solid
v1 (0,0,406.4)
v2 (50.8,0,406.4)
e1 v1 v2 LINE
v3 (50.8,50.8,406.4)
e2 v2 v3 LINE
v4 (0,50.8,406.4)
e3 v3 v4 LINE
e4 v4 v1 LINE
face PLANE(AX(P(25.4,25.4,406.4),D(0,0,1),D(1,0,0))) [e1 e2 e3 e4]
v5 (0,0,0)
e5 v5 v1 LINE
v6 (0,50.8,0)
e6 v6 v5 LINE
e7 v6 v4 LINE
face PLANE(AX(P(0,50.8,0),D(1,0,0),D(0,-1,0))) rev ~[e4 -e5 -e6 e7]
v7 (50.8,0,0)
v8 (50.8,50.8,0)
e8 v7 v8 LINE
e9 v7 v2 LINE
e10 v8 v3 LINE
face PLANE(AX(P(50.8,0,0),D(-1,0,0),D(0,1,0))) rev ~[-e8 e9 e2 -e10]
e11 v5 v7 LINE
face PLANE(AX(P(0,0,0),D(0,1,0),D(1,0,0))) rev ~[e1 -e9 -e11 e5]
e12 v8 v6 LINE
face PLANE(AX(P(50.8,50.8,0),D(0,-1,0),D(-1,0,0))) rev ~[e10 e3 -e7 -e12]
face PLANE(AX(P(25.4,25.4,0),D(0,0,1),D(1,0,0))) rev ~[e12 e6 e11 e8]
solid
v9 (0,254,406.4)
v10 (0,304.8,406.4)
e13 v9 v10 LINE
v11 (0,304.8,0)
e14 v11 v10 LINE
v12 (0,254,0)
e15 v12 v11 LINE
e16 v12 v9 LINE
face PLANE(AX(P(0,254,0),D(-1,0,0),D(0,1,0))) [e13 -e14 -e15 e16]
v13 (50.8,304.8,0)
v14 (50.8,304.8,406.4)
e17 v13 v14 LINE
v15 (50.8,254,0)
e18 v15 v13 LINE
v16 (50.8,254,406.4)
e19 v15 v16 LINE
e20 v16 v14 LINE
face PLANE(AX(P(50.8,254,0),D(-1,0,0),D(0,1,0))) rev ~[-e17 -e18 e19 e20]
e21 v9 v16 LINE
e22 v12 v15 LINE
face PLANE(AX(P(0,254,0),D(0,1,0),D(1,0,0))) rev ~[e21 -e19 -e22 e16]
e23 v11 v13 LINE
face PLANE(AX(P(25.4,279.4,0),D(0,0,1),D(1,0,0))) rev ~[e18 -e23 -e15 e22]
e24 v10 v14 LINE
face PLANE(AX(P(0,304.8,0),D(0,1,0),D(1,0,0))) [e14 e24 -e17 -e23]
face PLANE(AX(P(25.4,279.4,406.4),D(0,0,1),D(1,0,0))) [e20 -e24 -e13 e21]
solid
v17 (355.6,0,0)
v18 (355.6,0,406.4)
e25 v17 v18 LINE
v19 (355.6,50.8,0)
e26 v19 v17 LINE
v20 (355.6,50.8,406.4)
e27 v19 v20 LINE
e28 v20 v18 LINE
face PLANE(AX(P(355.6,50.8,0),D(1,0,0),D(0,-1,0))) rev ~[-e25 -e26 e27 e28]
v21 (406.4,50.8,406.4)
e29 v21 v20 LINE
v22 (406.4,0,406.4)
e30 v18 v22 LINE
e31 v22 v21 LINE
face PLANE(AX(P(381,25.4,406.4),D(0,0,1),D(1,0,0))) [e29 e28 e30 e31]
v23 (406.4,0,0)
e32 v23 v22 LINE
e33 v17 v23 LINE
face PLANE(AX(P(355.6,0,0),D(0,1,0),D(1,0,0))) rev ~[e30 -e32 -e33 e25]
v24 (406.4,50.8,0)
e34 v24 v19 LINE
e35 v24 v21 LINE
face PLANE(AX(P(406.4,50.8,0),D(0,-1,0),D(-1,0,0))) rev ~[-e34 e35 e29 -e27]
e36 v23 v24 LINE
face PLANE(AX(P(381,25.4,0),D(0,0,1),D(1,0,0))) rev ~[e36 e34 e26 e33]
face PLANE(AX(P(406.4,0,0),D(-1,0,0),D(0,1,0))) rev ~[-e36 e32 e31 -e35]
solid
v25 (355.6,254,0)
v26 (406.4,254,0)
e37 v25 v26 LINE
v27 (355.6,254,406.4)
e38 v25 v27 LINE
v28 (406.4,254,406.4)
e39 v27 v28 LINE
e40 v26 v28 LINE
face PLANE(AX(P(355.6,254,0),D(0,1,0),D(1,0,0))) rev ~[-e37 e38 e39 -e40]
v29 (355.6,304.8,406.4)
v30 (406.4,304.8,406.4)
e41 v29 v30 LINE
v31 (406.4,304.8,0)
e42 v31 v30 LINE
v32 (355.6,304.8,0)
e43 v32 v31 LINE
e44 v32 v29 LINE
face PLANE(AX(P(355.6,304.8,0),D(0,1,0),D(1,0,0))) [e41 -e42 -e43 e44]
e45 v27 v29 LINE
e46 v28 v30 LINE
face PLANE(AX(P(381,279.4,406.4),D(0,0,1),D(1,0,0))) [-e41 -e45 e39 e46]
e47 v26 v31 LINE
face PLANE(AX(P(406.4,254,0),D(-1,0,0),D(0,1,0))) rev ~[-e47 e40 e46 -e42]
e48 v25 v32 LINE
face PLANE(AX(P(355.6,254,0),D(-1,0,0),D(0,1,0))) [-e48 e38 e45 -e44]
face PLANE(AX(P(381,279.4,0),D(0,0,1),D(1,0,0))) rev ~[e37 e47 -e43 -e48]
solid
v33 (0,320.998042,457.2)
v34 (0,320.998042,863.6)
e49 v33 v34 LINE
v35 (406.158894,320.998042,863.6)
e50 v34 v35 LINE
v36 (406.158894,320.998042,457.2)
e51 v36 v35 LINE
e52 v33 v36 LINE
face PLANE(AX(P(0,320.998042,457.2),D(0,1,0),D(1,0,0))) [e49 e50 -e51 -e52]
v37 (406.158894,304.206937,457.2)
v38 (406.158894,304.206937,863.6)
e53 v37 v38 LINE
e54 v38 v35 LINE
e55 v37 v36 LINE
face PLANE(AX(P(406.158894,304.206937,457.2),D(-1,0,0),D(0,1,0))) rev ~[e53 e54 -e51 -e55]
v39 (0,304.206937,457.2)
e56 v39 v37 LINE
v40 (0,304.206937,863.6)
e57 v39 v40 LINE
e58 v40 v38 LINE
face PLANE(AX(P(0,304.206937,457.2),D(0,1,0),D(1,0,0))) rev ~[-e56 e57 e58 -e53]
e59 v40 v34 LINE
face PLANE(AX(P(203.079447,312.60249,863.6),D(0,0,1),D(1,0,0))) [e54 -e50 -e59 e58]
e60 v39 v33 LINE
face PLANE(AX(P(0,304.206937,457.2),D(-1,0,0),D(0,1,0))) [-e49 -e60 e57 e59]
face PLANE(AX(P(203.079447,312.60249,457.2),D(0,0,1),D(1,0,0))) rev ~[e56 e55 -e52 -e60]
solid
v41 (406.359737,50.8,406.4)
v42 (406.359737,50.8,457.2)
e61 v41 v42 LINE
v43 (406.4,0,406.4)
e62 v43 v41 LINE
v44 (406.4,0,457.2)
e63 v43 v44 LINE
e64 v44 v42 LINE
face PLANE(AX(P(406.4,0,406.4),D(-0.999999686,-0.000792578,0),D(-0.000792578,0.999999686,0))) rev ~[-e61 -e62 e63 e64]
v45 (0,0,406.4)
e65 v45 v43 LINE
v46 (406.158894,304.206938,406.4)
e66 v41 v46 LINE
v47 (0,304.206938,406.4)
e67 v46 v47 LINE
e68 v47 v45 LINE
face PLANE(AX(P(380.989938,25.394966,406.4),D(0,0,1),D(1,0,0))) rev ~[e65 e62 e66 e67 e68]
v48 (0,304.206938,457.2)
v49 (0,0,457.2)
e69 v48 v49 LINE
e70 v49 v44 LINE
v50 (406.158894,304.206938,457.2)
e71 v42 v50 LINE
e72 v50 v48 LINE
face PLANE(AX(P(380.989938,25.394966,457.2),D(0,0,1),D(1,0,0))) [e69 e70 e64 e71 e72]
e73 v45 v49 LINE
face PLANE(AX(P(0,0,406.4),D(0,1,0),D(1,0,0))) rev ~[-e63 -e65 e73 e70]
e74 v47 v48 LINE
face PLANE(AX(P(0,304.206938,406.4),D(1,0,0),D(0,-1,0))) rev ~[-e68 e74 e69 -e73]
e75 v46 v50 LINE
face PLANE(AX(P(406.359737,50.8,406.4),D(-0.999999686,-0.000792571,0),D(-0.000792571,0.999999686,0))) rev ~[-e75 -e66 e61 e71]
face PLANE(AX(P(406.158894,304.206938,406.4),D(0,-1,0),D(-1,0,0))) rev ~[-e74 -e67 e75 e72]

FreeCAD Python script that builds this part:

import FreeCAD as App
import Part
import Sketcher
Q = App.Units.Quantity


def add_polygon(sketch, points):
    """Adds a closed chain of lines whose ends are joined by coincident constraints."""
    first, n = sketch.GeometryCount, len(points)
    for a, b in zip(points, points[1:] + points[:1]):
        sketch.addGeometry(Part.LineSegment(App.Vector(*a, 0), App.Vector(*b, 0)), False)
    for i in range(n):
        sketch.addConstraint(Sketcher.Constraint("Coincident", first + i, 2, first + (i + 1) % n, 1))

doc = App.newDocument("Part")
body = doc.addObject("PartDesign::Body", "Body")
body.AllowCompound = True

sketch1 = body.newObject("Sketcher::SketchObject", "Sketch")
sketch1.AttachmentSupport = (doc.getObject("XY_Plane"), [""])
sketch1.MapMode = "FlatFace"
add_polygon(sketch1, [(0, 50.8), (0, 0), (50.8, 0), (50.8, 50.8)])
add_polygon(sketch1, [(0, 304.8), (0, 254), (50.8, 254), (50.8, 304.8)])
add_polygon(sketch1, [(355.6, 304.8), (355.6, 254), (406.4, 254), (406.4, 304.8)])
add_polygon(sketch1, [(355.6, 0), (406.4, 0), (406.4, 50.8), (355.6, 50.8)])
sketch1.addConstraint(Sketcher.Constraint("Vertical", 0))
sketch1.addConstraint(Sketcher.Constraint("Horizontal", 1))
sketch1.addConstraint(Sketcher.Constraint("Vertical", 2))
sketch1.addConstraint(Sketcher.Constraint("Horizontal", 3))
sketch1.addConstraint(Sketcher.Constraint("Vertical", 4))
sketch1.addConstraint(Sketcher.Constraint("Horizontal", 5))
sketch1.addConstraint(Sketcher.Constraint("Vertical", 6))
sketch1.addConstraint(Sketcher.Constraint("Horizontal", 7))
sketch1.addConstraint(Sketcher.Constraint("Vertical", 8))
sketch1.addConstraint(Sketcher.Constraint("Horizontal", 9))
sketch1.addConstraint(Sketcher.Constraint("Vertical", 10))
sketch1.addConstraint(Sketcher.Constraint("Horizontal", 11))
sketch1.addConstraint(Sketcher.Constraint("Horizontal", 12))
sketch1.addConstraint(Sketcher.Constraint("Vertical", 13))
sketch1.addConstraint(Sketcher.Constraint("Horizontal", 14))
sketch1.addConstraint(Sketcher.Constraint("Vertical", 15))
sketch1.addConstraint(Sketcher.Constraint("Coincident", 0, 2, -1, 1))
sketch1.addConstraint(Sketcher.Constraint("PointOnObject", 4, 2, -2))
sketch1.addConstraint(Sketcher.Constraint("PointOnObject", 12, 2, -1))
sketch1.addConstraint(Sketcher.Constraint("Horizontal", 5, 2, 8, 2))
sketch1.addConstraint(Sketcher.Constraint("Horizontal", 7, 2, 10, 2))
sketch1.addConstraint(Sketcher.Constraint("Horizontal", 3, 2, 13, 2))
sketch1.addConstraint(Sketcher.Constraint("Vertical", 2, 2, 5, 2))
sketch1.addConstraint(Sketcher.Constraint("Vertical", 10, 2, 12, 2))
sketch1.addConstraint(Sketcher.Constraint("Vertical", 11, 2, 14, 2))
sketch1.addConstraint(Sketcher.Constraint("Equal", 7, 9))
sketch1.addConstraint(Sketcher.Constraint("Equal", 14, 0))
sketch1.addConstraint(Sketcher.Constraint("Equal", 2, 4))
sketch1.addConstraint(Sketcher.Constraint("DistanceX", 1, 1, 1, 2, Q("2 in")))
sketch1.addConstraint(Sketcher.Constraint("DistanceY", -1, 1, 4, 2, Q("10 in")))
sketch1.addConstraint(Sketcher.Constraint("DistanceX", -1, 1, 8, 2, Q("14 in")))
pad1 = body.newObject("PartDesign::Pad", "Pad")
pad1.Profile = sketch1
pad1.Length = Q("16 in")
body2 = doc.addObject("PartDesign::Body", "Body001")

sketch2 = body2.newObject("Sketcher::SketchObject", "Sketch001")
sketch2.AttachmentSupport = (doc.getObject("XY_Plane001"), [""])
sketch2.MapMode = "FlatFace"
sketch2.AttachmentOffset = App.Placement(App.Vector(0, 0, 16 * 25.4), App.Rotation())
add_polygon(sketch2, [(406.4, 0), (406.359737, 50.8), (406.158894, 304.206938), (0, 304.206938), (0, 0)])
sketch2.addConstraint(Sketcher.Constraint("Horizontal", 2))
sketch2.addConstraint(Sketcher.Constraint("Vertical", 3))
sketch2.addConstraint(Sketcher.Constraint("Horizontal", 4))
sketch2.addConstraint(Sketcher.Constraint("Coincident", 3, 2, -1, 1))
sketch2.addConstraint(Sketcher.Constraint("Parallel", 0, 1))
sketch2.addConstraint(Sketcher.Constraint("DistanceX", 4, 1, 4, 2, Q("16 in")))
sketch2.addConstraint(Sketcher.Constraint("DistanceY", -1, 1, 0, 2, Q("2 in")))
sketch2.addConstraint(Sketcher.Constraint("DistanceY", 3, 2, 3, 1, Q("304.206938 mm")))
sketch2.addConstraint(Sketcher.Constraint("DistanceX", 2, 2, 2, 1, Q("406.158894 mm")))
pad2 = body2.newObject("PartDesign::Pad", "Pad001")
pad2.Profile = sketch2
pad2.Length = Q("2 in")
body3 = doc.addObject("PartDesign::Body", "Body002")

sketch3 = body3.newObject("Sketcher::SketchObject", "Sketch002")
sketch3.AttachmentSupport = (doc.getObject("XY_Plane002"), [""])
sketch3.MapMode = "FlatFace"
sketch3.AttachmentOffset = App.Placement(App.Vector(0, 0, 18 * 25.4), App.Rotation())
add_polygon(sketch3, [(0, 320.998042), (0, 304.206937), (406.158894, 304.206937), (406.158894, 320.998042)])
sketch3.addConstraint(Sketcher.Constraint("Vertical", 0))
sketch3.addConstraint(Sketcher.Constraint("Horizontal", 1))
sketch3.addConstraint(Sketcher.Constraint("Vertical", 2))
sketch3.addConstraint(Sketcher.Constraint("Horizontal", 3))
sketch3.addConstraint(Sketcher.Constraint("PointOnObject", 0, 2, -2))
sketch3.addConstraint(Sketcher.Constraint("DistanceX", 1, 1, 1, 2, Q("406.158894 mm")))
sketch3.addConstraint(Sketcher.Constraint("DistanceY", 0, 2, 0, 1, Q("16.791105 mm")))
sketch3.addConstraint(Sketcher.Constraint("DistanceY", -1, 1, 0, 2, Q("304.206937 mm")))
pad3 = body3.newObject("PartDesign::Pad", "Pad002")
pad3.Profile = sketch3
pad3.Length = Q("16 in")

doc.recompute()
